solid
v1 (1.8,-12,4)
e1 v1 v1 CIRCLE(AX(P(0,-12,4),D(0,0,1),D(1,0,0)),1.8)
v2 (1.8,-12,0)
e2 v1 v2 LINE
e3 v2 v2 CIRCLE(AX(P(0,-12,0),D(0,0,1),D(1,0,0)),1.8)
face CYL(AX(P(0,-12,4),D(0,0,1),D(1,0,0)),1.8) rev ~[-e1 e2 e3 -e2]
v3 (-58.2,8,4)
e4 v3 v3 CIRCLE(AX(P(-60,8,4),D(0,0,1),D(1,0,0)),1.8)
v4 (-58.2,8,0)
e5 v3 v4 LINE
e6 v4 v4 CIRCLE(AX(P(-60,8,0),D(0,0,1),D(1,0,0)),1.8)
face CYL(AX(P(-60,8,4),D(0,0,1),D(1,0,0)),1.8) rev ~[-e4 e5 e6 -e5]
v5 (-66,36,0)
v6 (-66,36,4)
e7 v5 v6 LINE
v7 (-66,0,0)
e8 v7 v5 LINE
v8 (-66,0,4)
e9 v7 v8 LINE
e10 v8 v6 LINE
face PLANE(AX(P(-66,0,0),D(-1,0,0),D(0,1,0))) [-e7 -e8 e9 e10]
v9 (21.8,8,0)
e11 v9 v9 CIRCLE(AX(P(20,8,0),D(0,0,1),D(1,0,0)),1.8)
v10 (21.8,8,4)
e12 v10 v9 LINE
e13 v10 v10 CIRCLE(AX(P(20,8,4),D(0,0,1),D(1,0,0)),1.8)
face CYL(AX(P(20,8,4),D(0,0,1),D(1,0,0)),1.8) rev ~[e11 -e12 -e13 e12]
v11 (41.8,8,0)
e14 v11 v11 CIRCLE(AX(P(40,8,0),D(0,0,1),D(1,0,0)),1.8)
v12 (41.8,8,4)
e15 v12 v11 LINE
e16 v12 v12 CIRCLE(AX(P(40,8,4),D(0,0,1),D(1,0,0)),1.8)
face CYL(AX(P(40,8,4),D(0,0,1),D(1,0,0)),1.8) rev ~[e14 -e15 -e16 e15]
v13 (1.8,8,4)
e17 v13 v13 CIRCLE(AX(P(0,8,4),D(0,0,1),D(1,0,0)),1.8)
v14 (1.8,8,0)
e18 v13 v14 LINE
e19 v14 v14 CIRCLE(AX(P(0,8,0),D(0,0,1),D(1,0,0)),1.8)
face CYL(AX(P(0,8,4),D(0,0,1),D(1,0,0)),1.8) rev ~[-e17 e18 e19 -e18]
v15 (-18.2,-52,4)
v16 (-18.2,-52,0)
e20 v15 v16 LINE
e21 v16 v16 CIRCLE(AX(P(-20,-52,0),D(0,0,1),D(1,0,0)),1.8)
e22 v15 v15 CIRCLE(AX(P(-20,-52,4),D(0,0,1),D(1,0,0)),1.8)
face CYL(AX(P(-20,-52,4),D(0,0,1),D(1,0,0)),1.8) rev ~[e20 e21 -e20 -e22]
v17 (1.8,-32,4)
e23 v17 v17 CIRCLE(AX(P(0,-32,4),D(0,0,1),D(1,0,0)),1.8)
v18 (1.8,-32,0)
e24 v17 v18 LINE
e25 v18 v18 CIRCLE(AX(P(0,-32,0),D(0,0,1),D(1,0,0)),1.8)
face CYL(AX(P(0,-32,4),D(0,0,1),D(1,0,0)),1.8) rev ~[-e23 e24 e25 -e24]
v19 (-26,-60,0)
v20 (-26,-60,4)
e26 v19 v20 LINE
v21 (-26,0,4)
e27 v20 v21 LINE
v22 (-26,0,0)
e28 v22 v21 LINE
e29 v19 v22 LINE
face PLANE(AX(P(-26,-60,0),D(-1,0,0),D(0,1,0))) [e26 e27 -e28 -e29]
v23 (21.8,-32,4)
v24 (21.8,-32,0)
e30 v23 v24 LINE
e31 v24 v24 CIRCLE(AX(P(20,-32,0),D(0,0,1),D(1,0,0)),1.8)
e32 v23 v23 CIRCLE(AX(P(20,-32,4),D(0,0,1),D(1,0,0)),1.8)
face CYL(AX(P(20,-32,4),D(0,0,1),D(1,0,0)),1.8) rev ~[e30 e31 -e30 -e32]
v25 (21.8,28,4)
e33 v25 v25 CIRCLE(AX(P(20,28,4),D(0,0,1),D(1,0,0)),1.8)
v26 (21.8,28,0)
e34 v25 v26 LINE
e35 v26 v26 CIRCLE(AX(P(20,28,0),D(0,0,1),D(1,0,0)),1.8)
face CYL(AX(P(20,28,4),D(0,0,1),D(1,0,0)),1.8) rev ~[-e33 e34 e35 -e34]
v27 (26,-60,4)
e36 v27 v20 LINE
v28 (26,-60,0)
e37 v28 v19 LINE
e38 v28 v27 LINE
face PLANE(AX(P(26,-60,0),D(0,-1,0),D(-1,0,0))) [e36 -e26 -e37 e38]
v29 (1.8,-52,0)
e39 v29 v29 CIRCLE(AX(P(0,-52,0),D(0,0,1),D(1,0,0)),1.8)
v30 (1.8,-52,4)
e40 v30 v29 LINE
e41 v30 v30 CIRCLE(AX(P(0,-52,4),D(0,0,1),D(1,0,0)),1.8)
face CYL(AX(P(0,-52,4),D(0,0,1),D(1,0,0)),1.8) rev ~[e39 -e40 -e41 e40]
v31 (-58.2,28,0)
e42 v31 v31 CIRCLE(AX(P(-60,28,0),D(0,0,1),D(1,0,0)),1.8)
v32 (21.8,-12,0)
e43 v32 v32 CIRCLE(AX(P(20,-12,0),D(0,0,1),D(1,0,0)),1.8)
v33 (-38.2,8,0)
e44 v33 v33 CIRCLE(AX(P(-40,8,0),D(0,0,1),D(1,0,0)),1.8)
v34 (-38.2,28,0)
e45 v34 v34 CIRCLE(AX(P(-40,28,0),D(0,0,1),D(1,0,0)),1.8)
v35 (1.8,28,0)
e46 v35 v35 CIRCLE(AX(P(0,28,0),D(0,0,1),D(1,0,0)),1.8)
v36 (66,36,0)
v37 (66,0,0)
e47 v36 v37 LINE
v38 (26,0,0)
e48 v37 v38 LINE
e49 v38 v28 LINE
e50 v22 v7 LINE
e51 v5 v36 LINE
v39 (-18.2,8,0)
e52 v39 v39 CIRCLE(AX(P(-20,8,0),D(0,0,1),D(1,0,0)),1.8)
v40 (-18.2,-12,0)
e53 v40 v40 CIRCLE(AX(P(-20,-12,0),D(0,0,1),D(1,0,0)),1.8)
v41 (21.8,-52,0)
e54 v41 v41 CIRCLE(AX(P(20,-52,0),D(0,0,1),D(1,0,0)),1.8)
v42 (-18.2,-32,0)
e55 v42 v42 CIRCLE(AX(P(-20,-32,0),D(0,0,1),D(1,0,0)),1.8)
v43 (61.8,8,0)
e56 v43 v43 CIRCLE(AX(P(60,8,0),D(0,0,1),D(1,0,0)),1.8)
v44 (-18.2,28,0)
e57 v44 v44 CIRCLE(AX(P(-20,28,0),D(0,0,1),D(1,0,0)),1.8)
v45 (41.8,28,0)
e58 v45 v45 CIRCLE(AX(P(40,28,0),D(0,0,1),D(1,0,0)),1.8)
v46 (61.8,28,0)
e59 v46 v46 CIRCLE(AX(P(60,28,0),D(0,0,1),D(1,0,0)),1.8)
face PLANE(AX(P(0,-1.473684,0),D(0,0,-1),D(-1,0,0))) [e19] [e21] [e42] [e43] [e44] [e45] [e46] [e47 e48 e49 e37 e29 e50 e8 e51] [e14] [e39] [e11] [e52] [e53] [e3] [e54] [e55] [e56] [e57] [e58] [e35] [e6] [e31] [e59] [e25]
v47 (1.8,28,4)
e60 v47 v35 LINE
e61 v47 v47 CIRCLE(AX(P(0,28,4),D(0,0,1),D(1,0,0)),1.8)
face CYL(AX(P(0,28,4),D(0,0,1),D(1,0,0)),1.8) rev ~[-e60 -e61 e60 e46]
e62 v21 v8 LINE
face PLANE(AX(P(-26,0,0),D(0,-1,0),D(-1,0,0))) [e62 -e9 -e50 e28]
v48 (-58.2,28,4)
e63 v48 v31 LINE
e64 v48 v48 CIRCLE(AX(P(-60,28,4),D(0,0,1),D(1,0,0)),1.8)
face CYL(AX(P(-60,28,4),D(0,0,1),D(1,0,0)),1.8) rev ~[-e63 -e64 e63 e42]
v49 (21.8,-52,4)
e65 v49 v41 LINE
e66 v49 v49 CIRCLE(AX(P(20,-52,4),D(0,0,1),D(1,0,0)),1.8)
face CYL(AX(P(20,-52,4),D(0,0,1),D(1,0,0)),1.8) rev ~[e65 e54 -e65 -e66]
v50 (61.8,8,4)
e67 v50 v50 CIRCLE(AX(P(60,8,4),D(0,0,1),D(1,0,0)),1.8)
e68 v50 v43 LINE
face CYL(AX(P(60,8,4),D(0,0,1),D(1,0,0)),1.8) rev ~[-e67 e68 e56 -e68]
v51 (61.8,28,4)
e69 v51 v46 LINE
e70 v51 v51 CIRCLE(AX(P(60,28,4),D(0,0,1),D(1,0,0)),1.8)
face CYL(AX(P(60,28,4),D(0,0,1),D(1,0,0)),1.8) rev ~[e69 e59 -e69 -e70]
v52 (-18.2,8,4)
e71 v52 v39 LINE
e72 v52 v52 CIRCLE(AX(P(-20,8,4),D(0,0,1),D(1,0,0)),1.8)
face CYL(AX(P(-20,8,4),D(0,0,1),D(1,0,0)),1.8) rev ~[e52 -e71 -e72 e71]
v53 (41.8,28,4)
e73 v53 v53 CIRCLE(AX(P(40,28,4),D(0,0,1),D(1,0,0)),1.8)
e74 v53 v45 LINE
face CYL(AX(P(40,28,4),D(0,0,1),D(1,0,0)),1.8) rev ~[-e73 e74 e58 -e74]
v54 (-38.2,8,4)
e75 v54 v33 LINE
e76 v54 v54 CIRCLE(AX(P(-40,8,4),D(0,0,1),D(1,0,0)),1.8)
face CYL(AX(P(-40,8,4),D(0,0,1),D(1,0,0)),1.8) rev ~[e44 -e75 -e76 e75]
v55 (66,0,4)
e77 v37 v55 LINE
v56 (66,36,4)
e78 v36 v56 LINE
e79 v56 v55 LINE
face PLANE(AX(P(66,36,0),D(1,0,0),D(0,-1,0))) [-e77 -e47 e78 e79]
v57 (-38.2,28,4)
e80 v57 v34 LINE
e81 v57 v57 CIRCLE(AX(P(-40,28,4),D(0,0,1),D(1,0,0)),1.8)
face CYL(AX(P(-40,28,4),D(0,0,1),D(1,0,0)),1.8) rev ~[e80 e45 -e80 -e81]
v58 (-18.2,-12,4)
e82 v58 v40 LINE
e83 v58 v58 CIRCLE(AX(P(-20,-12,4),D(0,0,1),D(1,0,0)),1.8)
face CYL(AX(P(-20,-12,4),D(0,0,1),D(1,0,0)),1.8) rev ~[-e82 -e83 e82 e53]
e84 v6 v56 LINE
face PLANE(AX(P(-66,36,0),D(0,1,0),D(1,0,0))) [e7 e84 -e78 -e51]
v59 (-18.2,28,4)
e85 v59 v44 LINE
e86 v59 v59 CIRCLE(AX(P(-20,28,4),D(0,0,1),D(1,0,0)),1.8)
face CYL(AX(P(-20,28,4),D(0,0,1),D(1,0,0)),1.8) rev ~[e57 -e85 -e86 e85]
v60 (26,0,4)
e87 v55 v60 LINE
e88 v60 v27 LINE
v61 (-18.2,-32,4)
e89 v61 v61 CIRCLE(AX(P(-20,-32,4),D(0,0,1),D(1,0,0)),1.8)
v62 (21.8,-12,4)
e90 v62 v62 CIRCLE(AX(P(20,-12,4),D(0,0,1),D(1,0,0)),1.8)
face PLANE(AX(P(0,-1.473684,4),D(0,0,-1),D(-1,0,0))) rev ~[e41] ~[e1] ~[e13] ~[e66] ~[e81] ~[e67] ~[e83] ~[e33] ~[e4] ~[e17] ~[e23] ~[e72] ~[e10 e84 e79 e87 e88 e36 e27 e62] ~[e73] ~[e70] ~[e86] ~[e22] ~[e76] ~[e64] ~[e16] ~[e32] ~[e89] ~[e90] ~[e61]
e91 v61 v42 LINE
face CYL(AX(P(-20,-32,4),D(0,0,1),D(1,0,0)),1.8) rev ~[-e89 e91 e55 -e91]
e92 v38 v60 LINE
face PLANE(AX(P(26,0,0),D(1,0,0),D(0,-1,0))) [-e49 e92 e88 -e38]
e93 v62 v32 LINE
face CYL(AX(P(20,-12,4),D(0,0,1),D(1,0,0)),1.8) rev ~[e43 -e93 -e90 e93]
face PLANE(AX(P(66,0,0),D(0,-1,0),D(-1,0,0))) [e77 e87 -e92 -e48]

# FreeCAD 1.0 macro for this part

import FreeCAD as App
import Part
import Sketcher


def add_polygon(sketch, points):
    """Adds a closed chain of lines whose ends are joined by coincident constraints."""
    first, n = sketch.GeometryCount, len(points)
    for a, b in zip(points, points[1:] + points[:1]):
        sketch.addGeometry(Part.LineSegment(App.Vector(*a, 0), App.Vector(*b, 0)), False)
    for i in range(n):
        sketch.addConstraint(Sketcher.Constraint("Coincident", first + i, 2, first + (i + 1) % n, 1))

doc = App.newDocument("Part")
body = doc.addObject("PartDesign::Body", "Body")

sketch1 = body.newObject("Sketcher::SketchObject", "Sketch")
sketch1.AttachmentSupport = (doc.getObject("XY_Plane"), [""])
sketch1.MapMode = "FlatFace"
add_polygon(sketch1, [(-66, 36), (-66, 0), (-26, 0), (-26, -60), (26, -60), (26, 0), (66, 0), (66, 36)])
sketch1.addConstraint(Sketcher.Constraint("Vertical", 0))
sketch1.addConstraint(Sketcher.Constraint("Horizontal", 1))
sketch1.addConstraint(Sketcher.Constraint("Vertical", 2))
sketch1.addConstraint(Sketcher.Constraint("Horizontal", 3))
sketch1.addConstraint(Sketcher.Constraint("Vertical", 4))
sketch1.addConstraint(Sketcher.Constraint("Horizontal", 5))
sketch1.addConstraint(Sketcher.Constraint("Vertical", 6))
sketch1.addConstraint(Sketcher.Constraint("Horizontal", 7))
sketch1.addConstraint(Sketcher.Constraint("Symmetric", 1, 2, 4, 2, -1, 1))
sketch1.addConstraint(Sketcher.Constraint("Symmetric", 0, 2, 5, 2, -2))
sketch1.addConstraint(Sketcher.Constraint("DistanceX", 1, 1, 1, 2, 40.0))
sketch1.addConstraint(Sketcher.Constraint("DistanceX", 3, 1, 3, 2, 52.0))
sketch1.addConstraint(Sketcher.Constraint("DistanceY", 0, 2, 0, 1, 36.0))
sketch1.addConstraint(Sketcher.Constraint("DistanceY", 2, 2, 2, 1, 60.0))
pad1 = body.newObject("PartDesign::Pad", "Pad")
pad1.Profile = sketch1
pad1.Length = 4

sketch2 = body.newObject("Sketcher::SketchObject", "Sketch001")
sketch2.AttachmentSupport = (doc.getObject("XY_Plane"), [""])
sketch2.MapMode = "FlatFace"
sketch2.AttachmentOffset = App.Placement(App.Vector(0, 0, 4), App.Rotation())
sketch2.addGeometry(Part.Circle(App.Vector(-60, 28, 0), App.Vector(0, 0, 1), 1.8), False)
sketch2.addGeometry(Part.Circle(App.Vector(-40, 28, 0), App.Vector(0, 0, 1), 1.8), False)
sketch2.addGeometry(Part.Circle(App.Vector(-60, 8, 0), App.Vector(0, 0, 1), 1.8), False)
sketch2.addGeometry(Part.Circle(App.Vector(-40, 8, 0), App.Vector(0, 0, 1), 1.8), False)
sketch2.addGeometry(Part.Circle(App.Vector(40, 28, 0), App.Vector(0, 0, 1), 1.8), False)
sketch2.addGeometry(Part.Circle(App.Vector(40, 8, 0), App.Vector(0, 0, 1), 1.8), False)
sketch2.addGeometry(Part.Circle(App.Vector(60, 28, 0), App.Vector(0, 0, 1), 1.8), False)
sketch2.addGeometry(Part.Circle(App.Vector(60, 8, 0), App.Vector(0, 0, 1), 1.8), False)
sketch2.addGeometry(Part.Circle(App.Vector(-20, -52, 0), App.Vector(0, 0, 1), 1.8), False)
sketch2.addGeometry(Part.Circle(App.Vector(0, -52, 0), App.Vector(0, 0, 1), 1.8), False)
sketch2.addGeometry(Part.Circle(App.Vector(20, -52, 0), App.Vector(0, 0, 1), 1.8), False)
sketch2.addGeometry(Part.Circle(App.Vector(-20, -32, 0), App.Vector(0, 0, 1), 1.8), False)
sketch2.addGeometry(Part.Circle(App.Vector(0, -32, 0), App.Vector(0, 0, 1), 1.8), False)
sketch2.addGeometry(Part.Circle(App.Vector(20, -32, 0), App.Vector(0, 0, 1), 1.8), False)
sketch2.addGeometry(Part.Circle(App.Vector(-20, -12, 0), App.Vector(0, 0, 1), 1.8), False)
sketch2.addGeometry(Part.Circle(App.Vector(0, -12, 0), App.Vector(0, 0, 1), 1.8), False)
sketch2.addGeometry(Part.Circle(App.Vector(20, -12, 0), App.Vector(0, 0, 1), 1.8), False)
sketch2.addGeometry(Part.Circle(App.Vector(20, 8, 0), App.Vector(0, 0, 1), 1.8), False)
sketch2.addGeometry(Part.Circle(App.Vector(0, 8, 0), App.Vector(0, 0, 1), 1.8), False)
sketch2.addGeometry(Part.Circle(App.Vector(-20, 8, 0), App.Vector(0, 0, 1), 1.8), False)
sketch2.addGeometry(Part.Circle(App.Vector(-20, 28, 0), App.Vector(0, 0, 1), 1.8), False)
sketch2.addGeometry(Part.Circle(App.Vector(0, 28, 0), App.Vector(0, 0, 1), 1.8), False)
sketch2.addGeometry(Part.Circle(App.Vector(20, 28, 0), App.Vector(0, 0, 1), 1.8), False)
sketch2.addConstraint(Sketcher.Constraint("Equal", 0, 1))
sketch2.addConstraint(Sketcher.Constraint("Equal", 1, 2))
sketch2.addConstraint(Sketcher.Constraint("Equal", 2, 3))
sketch2.addConstraint(Sketcher.Constraint("Equal", 3, 4))
sketch2.addConstraint(Sketcher.Constraint("Equal", 4, 5))
sketch2.addConstraint(Sketcher.Constraint("Equal", 5, 6))
sketch2.addConstraint(Sketcher.Constraint("Equal", 6, 7))
sketch2.addConstraint(Sketcher.Constraint("Equal", 7, 8))
sketch2.addConstraint(Sketcher.Constraint("Equal", 8, 9))
sketch2.addConstraint(Sketcher.Constraint("Equal", 9, 10))
sketch2.addConstraint(Sketcher.Constraint("Equal", 10, 11))
sketch2.addConstraint(Sketcher.Constraint("Equal", 11, 12))
sketch2.addConstraint(Sketcher.Constraint("Equal", 12, 13))
sketch2.addConstraint(Sketcher.Constraint("Equal", 13, 14))
sketch2.addConstraint(Sketcher.Constraint("Equal", 14, 15))
sketch2.addConstraint(Sketcher.Constraint("Equal", 15, 16))
sketch2.addConstraint(Sketcher.Constraint("Equal", 16, 17))
sketch2.addConstraint(Sketcher.Constraint("Equal", 17, 18))
sketch2.addConstraint(Sketcher.Constraint("Equal", 18, 19))
sketch2.addConstraint(Sketcher.Constraint("Equal", 19, 20))
sketch2.addConstraint(Sketcher.Constraint("Equal", 20, 21))
sketch2.addConstraint(Sketcher.Constraint("Equal", 21, 22))
sketch2.addConstraint(Sketcher.Constraint("Symmetric", 1, 3, 4, 3, -2))
sketch2.addConstraint(Sketcher.Constraint("Symmetric", 3, 3, 5, 3, -2))
sketch2.addConstraint(Sketcher.Constraint("Symmetric", 0, 3, 6, 3, -2))
sketch2.addConstraint(Sketcher.Constraint("Symmetric", 2, 3, 7, 3, -2))
sketch2.addConstraint(Sketcher.Constraint("Symmetric", 8, 3, 10, 3, -2))
sketch2.addConstraint(Sketcher.Constraint("Symmetric", 11, 3, 13, 3, -2))
sketch2.addConstraint(Sketcher.Constraint("Symmetric", 14, 3, 16, 3, -2))
sketch2.addConstraint(Sketcher.Constraint("Symmetric", 17, 3, 19, 3, -2))
sketch2.addConstraint(Sketcher.Constraint("Symmetric", 20, 3, 22, 3, -2))
sketch2.addConstraint(Sketcher.Constraint("PointOnObject", 9, 3, -2))
sketch2.addConstraint(Sketcher.Constraint("PointOnObject", 12, 3, -2))
sketch2.addConstraint(Sketcher.Constraint("PointOnObject", 15, 3, -2))
sketch2.addConstraint(Sketcher.Constraint("PointOnObject", 18, 3, -2))
sketch2.addConstraint(Sketcher.Constraint("PointOnObject", 21, 3, -2))
sketch2.addConstraint(Sketcher.Constraint("Horizontal", 0, 3, 1, 3))
sketch2.addConstraint(Sketcher.Constraint("Horizontal", 2, 3, 3, 3))
sketch2.addConstraint(Sketcher.Constraint("Horizontal", 8, 3, 9, 3))
sketch2.addConstraint(Sketcher.Constraint("Horizontal", 11, 3, 12, 3))
sketch2.addConstraint(Sketcher.Constraint("Horizontal", 14, 3, 15, 3))
sketch2.addConstraint(Sketcher.Constraint("Horizontal", 7, 3, 17, 3))
sketch2.addConstraint(Sketcher.Constraint("Horizontal", 17, 3, 18, 3))
sketch2.addConstraint(Sketcher.Constraint("Horizontal", 6, 3, 20, 3))
sketch2.addConstraint(Sketcher.Constraint("Horizontal", 20, 3, 21, 3))
sketch2.addConstraint(Sketcher.Constraint("Vertical", 0, 3, 2, 3))
sketch2.addConstraint(Sketcher.Constraint("Vertical", 1, 3, 3, 3))
sketch2.addConstraint(Sketcher.Constraint("Vertical", 8, 3, 11, 3))
sketch2.addConstraint(Sketcher.Constraint("Vertical", 11, 3, 14, 3))
sketch2.addConstraint(Sketcher.Constraint("Vertical", 16, 3, 17, 3))
sketch2.addConstraint(Sketcher.Constraint("Vertical", 19, 3, 20, 3))
sketch2.addConstraint(Sketcher.Constraint("Diameter", 0, 3.6))
sketch2.addConstraint(Sketcher.Constraint("DistanceX", 0, 3, -1, 1, 60.0))
sketch2.addConstraint(Sketcher.Constraint("DistanceY", -1, 1, 0, 3, 28.0))
sketch2.addConstraint(Sketcher.Constraint("DistanceX", 1, 3, -1, 1, 40.0))
sketch2.addConstraint(Sketcher.Constraint("DistanceY", -1, 1, 2, 3, 8.0))
sketch2.addConstraint(Sketcher.Constraint("DistanceX", 8, 3, -1, 1, 20.0))
sketch2.addConstraint(Sketcher.Constraint("DistanceY", 8, 3, -1, 1, 52.0))
sketch2.addConstraint(Sketcher.Constraint("DistanceY", 11, 3, -1, 1, 32.0))
sketch2.addConstraint(Sketcher.Constraint("DistanceY", 14, 3, -1, 1, 12.0))
pocket1 = body.newObject("PartDesign::Pocket", "Pocket")
pocket1.Profile = sketch2
pocket1.Length = 5

doc.recompute()
